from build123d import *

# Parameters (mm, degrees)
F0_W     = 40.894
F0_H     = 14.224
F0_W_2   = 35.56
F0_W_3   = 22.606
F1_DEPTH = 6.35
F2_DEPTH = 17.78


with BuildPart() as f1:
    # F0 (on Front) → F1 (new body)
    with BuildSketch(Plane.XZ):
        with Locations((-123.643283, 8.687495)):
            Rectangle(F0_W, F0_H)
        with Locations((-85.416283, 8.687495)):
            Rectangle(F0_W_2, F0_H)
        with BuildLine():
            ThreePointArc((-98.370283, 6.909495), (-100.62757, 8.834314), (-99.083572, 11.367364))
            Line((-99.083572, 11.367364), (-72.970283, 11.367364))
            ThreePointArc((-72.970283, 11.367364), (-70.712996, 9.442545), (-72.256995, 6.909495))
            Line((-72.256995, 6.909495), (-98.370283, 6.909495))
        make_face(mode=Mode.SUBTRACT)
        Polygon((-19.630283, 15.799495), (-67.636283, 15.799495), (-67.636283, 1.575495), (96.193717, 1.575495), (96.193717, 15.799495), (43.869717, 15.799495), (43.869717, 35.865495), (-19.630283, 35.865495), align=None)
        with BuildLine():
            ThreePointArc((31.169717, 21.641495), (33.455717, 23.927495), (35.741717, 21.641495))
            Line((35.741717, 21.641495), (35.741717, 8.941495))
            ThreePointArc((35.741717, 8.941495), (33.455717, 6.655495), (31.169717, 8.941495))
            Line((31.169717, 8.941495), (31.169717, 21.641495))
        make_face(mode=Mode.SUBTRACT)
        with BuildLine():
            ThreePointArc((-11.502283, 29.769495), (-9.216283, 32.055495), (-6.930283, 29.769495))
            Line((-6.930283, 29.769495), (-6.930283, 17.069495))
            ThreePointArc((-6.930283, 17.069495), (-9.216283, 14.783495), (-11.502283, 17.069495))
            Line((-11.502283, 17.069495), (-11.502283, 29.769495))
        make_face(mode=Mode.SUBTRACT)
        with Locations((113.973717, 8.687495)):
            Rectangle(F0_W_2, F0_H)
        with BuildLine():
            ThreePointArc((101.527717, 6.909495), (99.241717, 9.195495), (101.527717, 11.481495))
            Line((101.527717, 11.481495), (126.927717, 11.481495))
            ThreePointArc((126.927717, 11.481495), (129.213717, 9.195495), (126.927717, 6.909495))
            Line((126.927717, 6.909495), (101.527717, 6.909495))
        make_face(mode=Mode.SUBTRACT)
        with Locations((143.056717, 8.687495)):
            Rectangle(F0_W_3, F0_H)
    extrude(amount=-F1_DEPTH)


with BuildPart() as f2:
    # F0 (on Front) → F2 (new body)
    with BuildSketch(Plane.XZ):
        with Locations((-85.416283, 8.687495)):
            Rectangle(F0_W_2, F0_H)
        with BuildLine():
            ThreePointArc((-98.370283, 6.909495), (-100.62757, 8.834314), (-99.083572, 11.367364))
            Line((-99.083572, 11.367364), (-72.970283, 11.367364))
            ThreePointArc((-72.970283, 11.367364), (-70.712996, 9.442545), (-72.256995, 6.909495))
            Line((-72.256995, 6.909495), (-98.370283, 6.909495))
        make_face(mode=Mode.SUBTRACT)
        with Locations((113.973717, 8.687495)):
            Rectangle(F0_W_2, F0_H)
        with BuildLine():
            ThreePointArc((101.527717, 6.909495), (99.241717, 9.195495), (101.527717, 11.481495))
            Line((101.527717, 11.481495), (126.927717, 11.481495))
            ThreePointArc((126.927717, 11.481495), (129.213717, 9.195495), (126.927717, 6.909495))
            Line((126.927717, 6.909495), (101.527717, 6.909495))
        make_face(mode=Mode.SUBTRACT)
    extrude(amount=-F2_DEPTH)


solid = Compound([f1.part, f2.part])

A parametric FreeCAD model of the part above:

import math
import FreeCAD as App
import Part
import Sketcher
Q = App.Units.Quantity

doc = App.newDocument("Part")
params = doc.addObject("Spreadsheet::Sheet", "Params")
for row, (alias, value) in enumerate([
    ("sketch1_width", "1 in"),
    ("sketch1_radius", "0.09 in"),
    ("sketch1_width2", "2.5 in"),
    ("sketch1_width3", "4.9 in"),
    ("sketch1_height", "0.5 in"),
    ("pad1_length", "0.25 in"),
    ("sketch2_width", "1 in"),
    ("sketch2_radius", "0.09 in"),
    ("sketch2_width2", "1.4 in"),
    ("sketch2_height", "0.56 in"),
    ("pad2_length", "0.7 in"),
], start=1):
    params.set(f"A{row}", alias)
    params.set(f"B{row}", "=" + value)
    params.setAlias(f"B{row}", alias)

body = doc.addObject("PartDesign::Body", "Body")

# Sketch on XZ plane
sketch1 = body.newObject("Sketcher::SketchObject", "Sketch")
sketch1.AttachmentSupport = (doc.getObject("XZ_Plane"), [""])
sketch1.MapMode = "FlatFace"
sketch1.addGeometry(Part.LineSegment(App.Vector(-144.1, 15.8, 0), App.Vector(-144.1, 1.6, 0)), False)
sketch1.addGeometry(Part.LineSegment(App.Vector(-144.1, 1.6, 0), App.Vector(154.4, 1.6, 0)), False)
sketch1.addGeometry(Part.LineSegment(App.Vector(154.4, 1.6, 0), App.Vector(154.4, 15.8, 0)), False)
sketch1.addGeometry(Part.LineSegment(App.Vector(154.4, 15.8, 0), App.Vector(43.9, 15.8, 0)), False)
sketch1.addGeometry(Part.LineSegment(App.Vector(43.9, 15.8, 0), App.Vector(43.9, 35.9, 0)), False)
sketch1.addGeometry(Part.LineSegment(App.Vector(43.9, 35.9, 0), App.Vector(-19.6, 35.9, 0)), False)
sketch1.addGeometry(Part.LineSegment(App.Vector(-19.6, 35.9, 0), App.Vector(-19.6, 15.8, 0)), False)
sketch1.addGeometry(Part.LineSegment(App.Vector(-19.6, 15.8, 0), App.Vector(-144.1, 15.8, 0)), False)
sketch1.addGeometry(Part.LineSegment(App.Vector(-72.3, 6.9, 0), App.Vector(-98.4, 6.9, 0)), False)
sketch1.addGeometry(Part.ArcOfCircle(Part.Circle(App.Vector(-98.4, 9.2, 0), App.Vector(0, 0, 1), 2.3), math.radians(108), math.radians(270)), False)
sketch1.addGeometry(Part.LineSegment(App.Vector(-99.1, 11.4, 0), App.Vector(-73, 11.4, 0)), False)
sketch1.addGeometry(Part.ArcOfCircle(Part.Circle(App.Vector(-73, 9.1, 0), App.Vector(0, 0, 1), 2.3), math.radians(-72), math.radians(90)), False)
sketch1.addGeometry(Part.LineSegment(App.Vector(126.9, 6.9, 0), App.Vector(101.5, 6.9, 0)), False)
sketch1.addGeometry(Part.ArcOfCircle(Part.Circle(App.Vector(101.5, 9.2, 0), App.Vector(0, 0, 1), 2.3), math.radians(90), math.radians(270)), False)
sketch1.addGeometry(Part.LineSegment(App.Vector(101.5, 11.5, 0), App.Vector(126.9, 11.5, 0)), False)
sketch1.addGeometry(Part.ArcOfCircle(Part.Circle(App.Vector(126.9, 9.2, 0), App.Vector(0, 0, 1), 2.3), math.radians(-90), math.radians(90)), False)
sketch1.addGeometry(Part.LineSegment(App.Vector(31.2, 8.9, 0), App.Vector(31.2, 21.6, 0)), False)
sketch1.addGeometry(Part.ArcOfCircle(Part.Circle(App.Vector(33.5, 21.6, 0), App.Vector(0, 0, 1), 2.3), math.radians(0), math.radians(180)), False)
sketch1.addGeometry(Part.LineSegment(App.Vector(35.7, 21.6, 0), App.Vector(35.7, 8.9, 0)), False)
sketch1.addGeometry(Part.ArcOfCircle(Part.Circle(App.Vector(33.5, 8.9, 0), App.Vector(0, 0, 1), 2.3), math.radians(180), math.radians(360)), False)
sketch1.addGeometry(Part.LineSegment(App.Vector(-11.5, 17.1, 0), App.Vector(-11.5, 29.8, 0)), False)
sketch1.addGeometry(Part.ArcOfCircle(Part.Circle(App.Vector(-9.2, 29.8, 0), App.Vector(0, 0, 1), 2.3), math.radians(0), math.radians(180)), False)
sketch1.addGeometry(Part.LineSegment(App.Vector(-6.9, 29.8, 0), App.Vector(-6.9, 17.1, 0)), False)
sketch1.addGeometry(Part.ArcOfCircle(Part.Circle(App.Vector(-9.2, 17.1, 0), App.Vector(0, 0, 1), 2.3), math.radians(180), math.radians(360)), False)
sketch1.addConstraint(Sketcher.Constraint("Coincident", 0, 2, 1, 1))
sketch1.addConstraint(Sketcher.Constraint("Coincident", 1, 2, 2, 1))
sketch1.addConstraint(Sketcher.Constraint("Coincident", 2, 2, 3, 1))
sketch1.addConstraint(Sketcher.Constraint("Coincident", 3, 2, 4, 1))
sketch1.addConstraint(Sketcher.Constraint("Coincident", 4, 2, 5, 1))
sketch1.addConstraint(Sketcher.Constraint("Coincident", 5, 2, 6, 1))
sketch1.addConstraint(Sketcher.Constraint("Coincident", 6, 2, 7, 1))
sketch1.addConstraint(Sketcher.Constraint("Coincident", 7, 2, 0, 1))
sketch1.addConstraint(Sketcher.Constraint("Tangent", 8, 2, 9, 2))
sketch1.addConstraint(Sketcher.Constraint("Coincident", 9, 1, 10, 1))
sketch1.addConstraint(Sketcher.Constraint("Tangent", 10, 2, 11, 2))
sketch1.addConstraint(Sketcher.Constraint("Coincident", 11, 1, 8, 1))
sketch1.addConstraint(Sketcher.Constraint("Tangent", 12, 2, 13, 2))
sketch1.addConstraint(Sketcher.Constraint("Tangent", 13, 1, 14, 1))
sketch1.addConstraint(Sketcher.Constraint("Tangent", 14, 2, 15, 2))
sketch1.addConstraint(Sketcher.Constraint("Tangent", 15, 1, 12, 1))
sketch1.addConstraint(Sketcher.Constraint("Tangent", 16, 2, 17, 2))
sketch1.addConstraint(Sketcher.Constraint("Tangent", 17, 1, 18, 1))
sketch1.addConstraint(Sketcher.Constraint("Tangent", 18, 2, 19, 2))
sketch1.addConstraint(Sketcher.Constraint("Tangent", 19, 1, 16, 1))
sketch1.addConstraint(Sketcher.Constraint("Tangent", 20, 2, 21, 2))
sketch1.addConstraint(Sketcher.Constraint("Tangent", 21, 1, 22, 1))
sketch1.addConstraint(Sketcher.Constraint("Tangent", 22, 2, 23, 2))
sketch1.addConstraint(Sketcher.Constraint("Tangent", 23, 1, 20, 1))
sketch1.addConstraint(Sketcher.Constraint("Vertical", 0))
sketch1.addConstraint(Sketcher.Constraint("Horizontal", 1))
sketch1.addConstraint(Sketcher.Constraint("Vertical", 2))
sketch1.addConstraint(Sketcher.Constraint("Horizontal", 3))
sketch1.addConstraint(Sketcher.Constraint("Vertical", 4))
sketch1.addConstraint(Sketcher.Constraint("Horizontal", 5))
sketch1.addConstraint(Sketcher.Constraint("Vertical", 6))
sketch1.addConstraint(Sketcher.Constraint("Horizontal", 7))
sketch1.addConstraint(Sketcher.Constraint("Horizontal", 8))
sketch1.addConstraint(Sketcher.Constraint("Horizontal", 10))
sketch1.addConstraint(Sketcher.Constraint("Horizontal", 12))
sketch1.addConstraint(Sketcher.Constraint("Horizontal", 14))
sketch1.addConstraint(Sketcher.Constraint("Vertical", 16))
sketch1.addConstraint(Sketcher.Constraint("Vertical", 18))
sketch1.addConstraint(Sketcher.Constraint("Vertical", 20))
sketch1.addConstraint(Sketcher.Constraint("Vertical", 22))
sketch1.addConstraint(Sketcher.Constraint("Equal", 9, 11))
sketch1.addConstraint(Sketcher.Constraint("Equal", 11, 13))
sketch1.addConstraint(Sketcher.Constraint("Equal", 15, 17))
sketch1.addConstraint(Sketcher.Constraint("Equal", 19, 21))
sketch1.addConstraint(Sketcher.Constraint("Horizontal", 9, 3, 13, 3))
sketch1.addConstraint(Sketcher.Constraint("Horizontal", 3, 2, 6, 2))
sketch1.addConstraint(Sketcher.Constraint("Equal", 18, 20))
sketch1.addConstraint(Sketcher.Constraint("DistanceX", 12, 2, 12, 1, Q("1 in")))
sketch1.addConstraint(Sketcher.Constraint("Radius", 9, Q("0.09 in")))
sketch1.addConstraint(Sketcher.Constraint("DistanceX", 5, 2, 5, 1, Q("2.5 in")))
sketch1.addConstraint(Sketcher.Constraint("DistanceX", 7, 2, 7, 1, Q("4.9 in")))
sketch1.addConstraint(Sketcher.Constraint("DistanceY", 16, 1, 16, 2, Q("0.5 in")))
sketch1.addConstraint(Sketcher.Constraint("DistanceX", 9, 3, 11, 3, Q("1 in")))
sketch1.addConstraint(Sketcher.Constraint("DistanceX", 1, 1, 1, 2, Q("11.75 in")))
sketch1.addConstraint(Sketcher.Constraint("DistanceY", 0, 2, 0, 1, Q("0.56 in")))
sketch1.addConstraint(Sketcher.Constraint("DistanceY", 4, 1, 4, 2, Q("0.79 in")))
sketch1.addConstraint(Sketcher.Constraint("DistanceX", 0, 2, 9, 3, Q("1.8 in")))
sketch1.addConstraint(Sketcher.Constraint("DistanceY", 0, 2, 9, 3, Q("0.3 in")))
sketch1.addConstraint(Sketcher.Constraint("DistanceX", 16, 2, 3, 2, Q("0.5 in")))
sketch1.addConstraint(Sketcher.Constraint("DistanceX", 5, 2, 21, 1, Q("0.5 in")))
sketch1.addConstraint(Sketcher.Constraint("DistanceX", 11, 3, 13, 3, Q("6.87 in")))
sketch1.addConstraint(Sketcher.Constraint("DistanceY", 13, 3, 17, 3, Q("0.49 in")))
sketch1.addConstraint(Sketcher.Constraint("DistanceY", 17, 3, 21, 3, Q("0.32 in")))
sketch1.addConstraint(Sketcher.Constraint("DistanceX", 10, 1, 10, 2, 26.113289))
sketch1.addConstraint(Sketcher.Constraint("DistanceX", 9, 3, -1, 1, 98.370283))
sketch1.addConstraint(Sketcher.Constraint("DistanceY", -1, 1, 9, 3, 9.195495))
sketch1.setExpression("Constraints[47]", "Params.sketch1_width")
sketch1.setExpression("Constraints[48]", "Params.sketch1_radius")
sketch1.setExpression("Constraints[49]", "Params.sketch1_width2")
sketch1.setExpression("Constraints[50]", "Params.sketch1_width3")
sketch1.setExpression("Constraints[51]", "Params.sketch1_height")
pad1 = body.newObject("PartDesign::Pad", "Pad")
pad1.Profile = sketch1
pad1.setExpression("Length", "Params.pad1_length")
pad1.Reversed = True
body2 = doc.addObject("PartDesign::Body", "Body001")
body2.AllowCompound = True

# Sketch on XZ plane
sketch2 = body2.newObject("Sketcher::SketchObject", "Sketch001")
sketch2.AttachmentSupport = (doc.getObject("XZ_Plane001"), [""])
sketch2.MapMode = "FlatFace"
sketch2.addGeometry(Part.LineSegment(App.Vector(-103.2, 15.8, 0), App.Vector(-103.2, 1.6, 0)), False)
sketch2.addGeometry(Part.LineSegment(App.Vector(-103.2, 1.6, 0), App.Vector(-67.6, 1.6, 0)), False)
sketch2.addGeometry(Part.LineSegment(App.Vector(-67.6, 1.6, 0), App.Vector(-67.6, 15.8, 0)), False)
sketch2.addGeometry(Part.LineSegment(App.Vector(-67.6, 15.8, 0), App.Vector(-103.2, 15.8, 0)), False)
sketch2.addGeometry(Part.LineSegment(App.Vector(-72.3, 6.9, 0), App.Vector(-98.4, 6.9, 0)), False)
sketch2.addGeometry(Part.ArcOfCircle(Part.Circle(App.Vector(-98.4, 9.2, 0), App.Vector(0, 0, 1), 2.3), math.radians(108), math.radians(270)), False)
sketch2.addGeometry(Part.LineSegment(App.Vector(-99.1, 11.4, 0), App.Vector(-73, 11.4, 0)), False)
sketch2.addGeometry(Part.ArcOfCircle(Part.Circle(App.Vector(-73, 9.1, 0), App.Vector(0, 0, 1), 2.3), math.radians(-72), math.radians(90)), False)
sketch2.addGeometry(Part.LineSegment(App.Vector(96.2, 15.8, 0), App.Vector(96.2, 1.6, 0)), False)
sketch2.addGeometry(Part.LineSegment(App.Vector(96.2, 1.6, 0), App.Vector(131.8, 1.6, 0)), False)
sketch2.addGeometry(Part.LineSegment(App.Vector(131.8, 1.6, 0), App.Vector(131.8, 15.8, 0)), False)
sketch2.addGeometry(Part.LineSegment(App.Vector(131.8, 15.8, 0), App.Vector(96.2, 15.8, 0)), False)
sketch2.addGeometry(Part.LineSegment(App.Vector(126.9, 6.9, 0), App.Vector(101.5, 6.9, 0)), False)
sketch2.addGeometry(Part.ArcOfCircle(Part.Circle(App.Vector(101.5, 9.2, 0), App.Vector(0, 0, 1), 2.3), math.radians(90), math.radians(270)), False)
sketch2.addGeometry(Part.LineSegment(App.Vector(101.5, 11.5, 0), App.Vector(126.9, 11.5, 0)), False)
sketch2.addGeometry(Part.ArcOfCircle(Part.Circle(App.Vector(126.9, 9.2, 0), App.Vector(0, 0, 1), 2.3), math.radians(-90), math.radians(90)), False)
sketch2.addConstraint(Sketcher.Constraint("Coincident", 0, 2, 1, 1))
sketch2.addConstraint(Sketcher.Constraint("Coincident", 1, 2, 2, 1))
sketch2.addConstraint(Sketcher.Constraint("Coincident", 2, 2, 3, 1))
sketch2.addConstraint(Sketcher.Constraint("Coincident", 3, 2, 0, 1))
sketch2.addConstraint(Sketcher.Constraint("Tangent", 4, 2, 5, 2))
sketch2.addConstraint(Sketcher.Constraint("Coincident", 5, 1, 6, 1))
sketch2.addConstraint(Sketcher.Constraint("Tangent", 6, 2, 7, 2))
sketch2.addConstraint(Sketcher.Constraint("Coincident", 7, 1, 4, 1))
sketch2.addConstraint(Sketcher.Constraint("Coincident", 8, 2, 9, 1))
sketch2.addConstraint(Sketcher.Constraint("Coincident", 9, 2, 10, 1))
sketch2.addConstraint(Sketcher.Constraint("Coincident", 10, 2, 11, 1))
sketch2.addConstraint(Sketcher.Constraint("Coincident", 11, 2, 8, 1))
sketch2.addConstraint(Sketcher.Constraint("Tangent", 12, 2, 13, 2))
sketch2.addConstraint(Sketcher.Constraint("Tangent", 13, 1, 14, 1))
sketch2.addConstraint(Sketcher.Constraint("Tangent", 14, 2, 15, 2))
sketch2.addConstraint(Sketcher.Constraint("Tangent", 15, 1, 12, 1))
sketch2.addConstraint(Sketcher.Constraint("Vertical", 0))
sketch2.addConstraint(Sketcher.Constraint("Horizontal", 1))
sketch2.addConstraint(Sketcher.Constraint("Vertical", 2))
sketch2.addConstraint(Sketcher.Constraint("Horizontal", 3))
sketch2.addConstraint(Sketcher.Constraint("Horizontal", 4))
sketch2.addConstraint(Sketcher.Constraint("Horizontal", 6))
sketch2.addConstraint(Sketcher.Constraint("Vertical", 8))
sketch2.addConstraint(Sketcher.Constraint("Horizontal", 9))
sketch2.addConstraint(Sketcher.Constraint("Vertical", 10))
sketch2.addConstraint(Sketcher.Constraint("Horizontal", 11))
sketch2.addConstraint(Sketcher.Constraint("Horizontal", 12))
sketch2.addConstraint(Sketcher.Constraint("Horizontal", 14))
sketch2.addConstraint(Sketcher.Constraint("Equal", 5, 7))
sketch2.addConstraint(Sketcher.Constraint("Equal", 7, 13))
sketch2.addConstraint(Sketcher.Constraint("Horizontal", 5, 3, 13, 3))
sketch2.addConstraint(Sketcher.Constraint("Horizontal", 1, 2, 8, 2))
sketch2.addConstraint(Sketcher.Constraint("Horizontal", 3, 2, 10, 2))
sketch2.addConstraint(Sketcher.Constraint("Equal", 3, 9))
sketch2.addConstraint(Sketcher.Constraint("DistanceX", 12, 2, 12, 1, Q("1 in")))
sketch2.addConstraint(Sketcher.Constraint("Radius", 5, Q("0.09 in")))
sketch2.addConstraint(Sketcher.Constraint("DistanceX", 1, 1, 1, 2, Q("1.4 in")))
sketch2.addConstraint(Sketcher.Constraint("DistanceX", 5, 3, 7, 3, Q("1 in")))
sketch2.addConstraint(Sketcher.Constraint("DistanceY", 0, 2, 0, 1, Q("0.56 in")))
sketch2.addConstraint(Sketcher.Constraint("DistanceY", 0, 2, 5, 3, Q("0.3 in")))
sketch2.addConstraint(Sketcher.Constraint("DistanceX", 7, 3, 13, 3, Q("6.87 in")))
sketch2.addConstraint(Sketcher.Constraint("DistanceX", 0, 2, 5, 3, Q("0.19 in")))
sketch2.addConstraint(Sketcher.Constraint("DistanceX", 8, 2, 13, 3, Q("0.21 in")))
sketch2.addConstraint(Sketcher.Constraint("DistanceX", 6, 1, 6, 2, 26.113289))
sketch2.addConstraint(Sketcher.Constraint("DistanceX", 5, 3, -1, 1, 98.370283))
sketch2.addConstraint(Sketcher.Constraint("DistanceY", -1, 1, 5, 3, 9.195495))
sketch2.setExpression("Constraints[34]", "Params.sketch2_width")
sketch2.setExpression("Constraints[35]", "Params.sketch2_radius")
sketch2.setExpression("Constraints[36]", "Params.sketch2_width2")
sketch2.setExpression("Constraints[38]", "Params.sketch2_height")
pad2 = body2.newObject("PartDesign::Pad", "Pad001")
pad2.Profile = sketch2
pad2.setExpression("Length", "Params.pad2_length")
pad2.Reversed = True

doc.recompute()
